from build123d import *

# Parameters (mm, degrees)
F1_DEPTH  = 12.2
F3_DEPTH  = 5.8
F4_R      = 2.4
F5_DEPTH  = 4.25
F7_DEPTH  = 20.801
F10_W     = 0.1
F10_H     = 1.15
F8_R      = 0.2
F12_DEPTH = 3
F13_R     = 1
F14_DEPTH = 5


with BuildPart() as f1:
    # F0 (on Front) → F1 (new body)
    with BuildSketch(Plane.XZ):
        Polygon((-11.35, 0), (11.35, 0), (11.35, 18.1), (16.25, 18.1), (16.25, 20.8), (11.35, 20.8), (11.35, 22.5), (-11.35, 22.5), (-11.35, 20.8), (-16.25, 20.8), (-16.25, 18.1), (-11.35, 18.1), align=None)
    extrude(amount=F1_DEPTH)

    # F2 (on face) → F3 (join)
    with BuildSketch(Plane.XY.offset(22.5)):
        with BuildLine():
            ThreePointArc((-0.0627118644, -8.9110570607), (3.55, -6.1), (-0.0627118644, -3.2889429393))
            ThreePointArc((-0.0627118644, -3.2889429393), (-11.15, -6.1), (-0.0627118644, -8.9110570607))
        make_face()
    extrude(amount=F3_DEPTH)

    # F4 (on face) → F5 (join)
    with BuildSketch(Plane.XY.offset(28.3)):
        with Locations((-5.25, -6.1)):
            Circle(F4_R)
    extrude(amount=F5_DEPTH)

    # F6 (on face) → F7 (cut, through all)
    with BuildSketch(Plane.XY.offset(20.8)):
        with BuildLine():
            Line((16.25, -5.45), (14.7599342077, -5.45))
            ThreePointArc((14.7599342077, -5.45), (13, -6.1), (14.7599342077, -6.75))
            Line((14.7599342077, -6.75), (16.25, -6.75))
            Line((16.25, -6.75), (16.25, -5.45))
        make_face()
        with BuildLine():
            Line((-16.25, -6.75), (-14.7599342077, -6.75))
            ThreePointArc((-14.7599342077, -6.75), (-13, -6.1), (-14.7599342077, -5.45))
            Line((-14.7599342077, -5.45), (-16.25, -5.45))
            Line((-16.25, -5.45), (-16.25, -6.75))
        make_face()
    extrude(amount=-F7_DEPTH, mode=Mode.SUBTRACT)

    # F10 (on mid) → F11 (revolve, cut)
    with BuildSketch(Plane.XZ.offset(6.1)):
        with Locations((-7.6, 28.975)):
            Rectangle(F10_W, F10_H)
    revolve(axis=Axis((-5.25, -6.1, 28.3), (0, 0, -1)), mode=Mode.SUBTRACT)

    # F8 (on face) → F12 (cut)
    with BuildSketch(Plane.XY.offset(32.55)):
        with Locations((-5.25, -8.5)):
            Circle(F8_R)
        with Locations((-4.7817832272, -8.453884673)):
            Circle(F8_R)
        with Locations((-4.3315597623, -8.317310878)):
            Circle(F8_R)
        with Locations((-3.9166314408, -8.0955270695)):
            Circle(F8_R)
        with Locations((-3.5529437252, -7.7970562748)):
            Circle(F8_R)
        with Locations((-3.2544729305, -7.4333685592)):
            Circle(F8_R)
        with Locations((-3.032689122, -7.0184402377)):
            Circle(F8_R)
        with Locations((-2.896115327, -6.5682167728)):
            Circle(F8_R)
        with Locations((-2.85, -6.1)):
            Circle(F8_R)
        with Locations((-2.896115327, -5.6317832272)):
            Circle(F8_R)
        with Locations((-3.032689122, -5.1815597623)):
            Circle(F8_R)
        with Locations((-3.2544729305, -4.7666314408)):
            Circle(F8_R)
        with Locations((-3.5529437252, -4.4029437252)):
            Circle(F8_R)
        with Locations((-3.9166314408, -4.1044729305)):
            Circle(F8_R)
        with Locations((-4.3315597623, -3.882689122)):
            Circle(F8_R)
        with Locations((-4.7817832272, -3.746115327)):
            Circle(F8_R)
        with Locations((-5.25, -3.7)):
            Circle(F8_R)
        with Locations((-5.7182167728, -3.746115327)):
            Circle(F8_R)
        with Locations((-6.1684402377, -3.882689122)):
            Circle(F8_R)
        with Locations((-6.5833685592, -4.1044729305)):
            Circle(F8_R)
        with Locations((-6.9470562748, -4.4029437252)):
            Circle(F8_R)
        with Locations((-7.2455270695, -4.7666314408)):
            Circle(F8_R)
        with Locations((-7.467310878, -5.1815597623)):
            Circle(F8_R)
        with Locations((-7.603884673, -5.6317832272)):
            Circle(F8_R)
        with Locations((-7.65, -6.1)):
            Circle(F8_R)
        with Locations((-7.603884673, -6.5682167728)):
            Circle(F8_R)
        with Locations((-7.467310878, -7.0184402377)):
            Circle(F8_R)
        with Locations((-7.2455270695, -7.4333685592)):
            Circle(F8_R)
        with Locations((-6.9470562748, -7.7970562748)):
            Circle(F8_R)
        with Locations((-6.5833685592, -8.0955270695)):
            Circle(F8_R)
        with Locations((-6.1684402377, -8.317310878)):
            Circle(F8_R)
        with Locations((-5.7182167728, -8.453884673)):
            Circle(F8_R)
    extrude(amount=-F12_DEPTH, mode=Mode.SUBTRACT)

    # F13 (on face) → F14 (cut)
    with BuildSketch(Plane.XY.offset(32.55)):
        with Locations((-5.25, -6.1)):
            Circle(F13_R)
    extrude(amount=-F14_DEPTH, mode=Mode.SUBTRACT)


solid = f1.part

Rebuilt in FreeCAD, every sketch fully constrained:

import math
import FreeCAD as App
import Part
import Sketcher

V = App.Vector

doc = App.newDocument("Part")
body = doc.addObject("PartDesign::Body", "Body")

# Sketch on XZ plane
sketch1 = body.newObject("Sketcher::SketchObject", "Sketch")
sketch1.AttachmentSupport = (doc.getObject("XZ_Plane"), [""])
sketch1.MapMode = "FlatFace"
sketch1.addGeometry(Part.LineSegment(V(-11.3, 0, 0), V(11.3, 0, 0)), False)
sketch1.addGeometry(Part.LineSegment(V(11.3, 0, 0), V(11.3, 18.1, 0)), False)
sketch1.addGeometry(Part.LineSegment(V(11.3, 18.1, 0), V(16.2, 18.1, 0)), False)
sketch1.addGeometry(Part.LineSegment(V(16.2, 18.1, 0), V(16.2, 20.8, 0)), False)
sketch1.addGeometry(Part.LineSegment(V(16.2, 20.8, 0), V(11.3, 20.8, 0)), False)
sketch1.addGeometry(Part.LineSegment(V(11.3, 20.8, 0), V(11.3, 22.5, 0)), False)
sketch1.addGeometry(Part.LineSegment(V(11.3, 22.5, 0), V(-11.3, 22.5, 0)), False)
sketch1.addGeometry(Part.LineSegment(V(-11.3, 22.5, 0), V(-11.3, 20.8, 0)), False)
sketch1.addGeometry(Part.LineSegment(V(-11.3, 20.8, 0), V(-16.2, 20.8, 0)), False)
sketch1.addGeometry(Part.LineSegment(V(-16.2, 20.8, 0), V(-16.2, 18.1, 0)), False)
sketch1.addGeometry(Part.LineSegment(V(-16.2, 18.1, 0), V(-11.3, 18.1, 0)), False)
sketch1.addGeometry(Part.LineSegment(V(-11.3, 18.1, 0), V(-11.3, 0, 0)), False)
sketch1.addConstraint(Sketcher.Constraint("Coincident", 0, 2, 1, 1))
sketch1.addConstraint(Sketcher.Constraint("Coincident", 1, 2, 2, 1))
sketch1.addConstraint(Sketcher.Constraint("Coincident", 2, 2, 3, 1))
sketch1.addConstraint(Sketcher.Constraint("Coincident", 3, 2, 4, 1))
sketch1.addConstraint(Sketcher.Constraint("Coincident", 4, 2, 5, 1))
sketch1.addConstraint(Sketcher.Constraint("Coincident", 5, 2, 6, 1))
sketch1.addConstraint(Sketcher.Constraint("Coincident", 6, 2, 7, 1))
sketch1.addConstraint(Sketcher.Constraint("Coincident", 7, 2, 8, 1))
sketch1.addConstraint(Sketcher.Constraint("Coincident", 8, 2, 9, 1))
sketch1.addConstraint(Sketcher.Constraint("Coincident", 9, 2, 10, 1))
sketch1.addConstraint(Sketcher.Constraint("Coincident", 10, 2, 11, 1))
sketch1.addConstraint(Sketcher.Constraint("Coincident", 11, 2, 0, 1))
sketch1.addConstraint(Sketcher.Constraint("Horizontal", 0))
sketch1.addConstraint(Sketcher.Constraint("Vertical", 1))
sketch1.addConstraint(Sketcher.Constraint("Horizontal", 2))
sketch1.addConstraint(Sketcher.Constraint("Vertical", 3))
sketch1.addConstraint(Sketcher.Constraint("Horizontal", 4))
sketch1.addConstraint(Sketcher.Constraint("Vertical", 5))
sketch1.addConstraint(Sketcher.Constraint("Horizontal", 6))
sketch1.addConstraint(Sketcher.Constraint("Vertical", 7))
sketch1.addConstraint(Sketcher.Constraint("Horizontal", 8))
sketch1.addConstraint(Sketcher.Constraint("Vertical", 9))
sketch1.addConstraint(Sketcher.Constraint("Horizontal", 10))
sketch1.addConstraint(Sketcher.Constraint("Vertical", 11))
sketch1.addConstraint(Sketcher.Constraint("Symmetric", 0, 2, 11, 2, -1, 1))
sketch1.addConstraint(Sketcher.Constraint("Symmetric", 4, 2, 7, 2, -2))
sketch1.addConstraint(Sketcher.Constraint("Symmetric", 2, 2, 9, 2, -2))
sketch1.addConstraint(Sketcher.Constraint("Vertical", 1, 2, 4, 2))
sketch1.addConstraint(Sketcher.Constraint("DistanceX", 0, 1, 0, 2, 22.7))
sketch1.addConstraint(Sketcher.Constraint("DistanceX", 2, 1, 2, 2, 4.9))
sketch1.addConstraint(Sketcher.Constraint("DistanceY", 1, 1, 1, 2, 18.1))
sketch1.addConstraint(Sketcher.Constraint("DistanceY", 3, 1, 3, 2, 2.7))
sketch1.addConstraint(Sketcher.Constraint("DistanceY", 5, 1, 5, 2, 1.7))
pad1 = body.newObject("PartDesign::Pad", "Pad")
pad1.Profile = sketch1
pad1.Length = 12.2

# Sketch on XY plane
sketch2 = body.newObject("Sketcher::SketchObject", "Sketch001")
sketch2.AttachmentSupport = (doc.getObject("XY_Plane"), [""])
sketch2.MapMode = "FlatFace"
sketch2.AttachmentOffset = App.Placement(V(0, 0, 22.5), App.Rotation())
sketch2.addGeometry(Part.ArcOfCircle(Part.Circle(V(0.7, -6.1, 0), V(0, 0, 1), 2.9), math.radians(-104), math.radians(104)), False)
sketch2.addGeometry(Part.ArcOfCircle(Part.Circle(V(-5.2, -6.1, 0), V(0, 0, 1), 5.9), math.radians(28), math.radians(332)), False)
sketch2.addConstraint(Sketcher.Constraint("Coincident", 0, 1, 1, 2))
sketch2.addConstraint(Sketcher.Constraint("Coincident", 1, 1, 0, 2))
sketch2.addConstraint(Sketcher.Constraint("Horizontal", 0, 3, 1, 3))
sketch2.addConstraint(Sketcher.Constraint("Radius", 0, 2.9))
sketch2.addConstraint(Sketcher.Constraint("Radius", 1, 5.9))
sketch2.addConstraint(Sketcher.Constraint("DistanceY", 0, 3, -1, 1, 6.1))
sketch2.addConstraint(Sketcher.Constraint("DistanceX", 1, 3, 0, 3, 5.9))
sketch2.addConstraint(Sketcher.Constraint("DistanceX", -1, 1, 0, 3, 0.65))
pad2 = body.newObject("PartDesign::Pad", "Pad001")
pad2.Profile = sketch2
pad2.Length = 5.8

# Sketch on XY plane
sketch3 = body.newObject("Sketcher::SketchObject", "Sketch002")
sketch3.AttachmentSupport = (doc.getObject("XY_Plane"), [""])
sketch3.MapMode = "FlatFace"
sketch3.AttachmentOffset = App.Placement(V(0, 0, 28.3), App.Rotation())
sketch3.addGeometry(Part.Circle(V(-5.2, -6.1, 0), V(0, 0, 1), 2.4), False)
sketch3.addConstraint(Sketcher.Constraint("Diameter", 0, 4.8))
sketch3.addConstraint(Sketcher.Constraint("DistanceY", 0, 3, -1, 1, 6.1))
sketch3.addConstraint(Sketcher.Constraint("DistanceX", 0, 3, -1, 1, 5.25))
pad3 = body.newObject("PartDesign::Pad", "Pad002")
pad3.Profile = sketch3
pad3.Length = 4.25

# Sketch on XY plane
sketch4 = body.newObject("Sketcher::SketchObject", "Sketch003")
sketch4.AttachmentSupport = (doc.getObject("XY_Plane"), [""])
sketch4.MapMode = "FlatFace"
sketch4.AttachmentOffset = App.Placement(V(0, 0, 20.8), App.Rotation())
sketch4.addGeometry(Part.LineSegment(V(16.2, -5.5, 0), V(14.8, -5.5, 0)), False)
sketch4.addGeometry(Part.ArcOfCircle(Part.Circle(V(14, -6.1, 0), V(0, 0, 1), 1), math.radians(41), math.radians(319)), False)
sketch4.addGeometry(Part.LineSegment(V(14.8, -6.8, 0), V(16.2, -6.8, 0)), False)
sketch4.addGeometry(Part.LineSegment(V(16.2, -6.8, 0), V(16.2, -5.5, 0)), False)
sketch4.addGeometry(Part.LineSegment(V(-16.2, -6.8, 0), V(-14.8, -6.8, 0)), False)
sketch4.addGeometry(Part.ArcOfCircle(Part.Circle(V(-14, -6.1, 0), V(0, 0, 1), 1), math.radians(-139), math.radians(139)), False)
sketch4.addGeometry(Part.LineSegment(V(-14.8, -5.5, 0), V(-16.2, -5.5, 0)), False)
sketch4.addGeometry(Part.LineSegment(V(-16.2, -5.5, 0), V(-16.2, -6.8, 0)), False)
sketch4.addConstraint(Sketcher.Constraint("Coincident", 0, 2, 1, 1))
sketch4.addConstraint(Sketcher.Constraint("Coincident", 1, 2, 2, 1))
sketch4.addConstraint(Sketcher.Constraint("Coincident", 2, 2, 3, 1))
sketch4.addConstraint(Sketcher.Constraint("Coincident", 3, 2, 0, 1))
sketch4.addConstraint(Sketcher.Constraint("Coincident", 4, 2, 5, 1))
sketch4.addConstraint(Sketcher.Constraint("Coincident", 5, 2, 6, 1))
sketch4.addConstraint(Sketcher.Constraint("Coincident", 6, 2, 7, 1))
sketch4.addConstraint(Sketcher.Constraint("Coincident", 7, 2, 4, 1))
sketch4.addConstraint(Sketcher.Constraint("Horizontal", 0))
sketch4.addConstraint(Sketcher.Constraint("Horizontal", 2))
sketch4.addConstraint(Sketcher.Constraint("Vertical", 3))
sketch4.addConstraint(Sketcher.Constraint("Horizontal", 4))
sketch4.addConstraint(Sketcher.Constraint("Horizontal", 6))
sketch4.addConstraint(Sketcher.Constraint("Vertical", 7))
sketch4.addConstraint(Sketcher.Constraint("Equal", 1, 5))
sketch4.addConstraint(Sketcher.Constraint("Symmetric", 1, 3, 5, 3, -2))
sketch4.addConstraint(Sketcher.Constraint("Symmetric", 3, 2, 6, 2, -2))
sketch4.addConstraint(Sketcher.Constraint("Horizontal", 2, 2, 4, 2))
sketch4.addConstraint(Sketcher.Constraint("Vertical", 0, 2, 1, 2))
sketch4.addConstraint(Sketcher.Constraint("Radius", 1, 1.0))
sketch4.addConstraint(Sketcher.Constraint("DistanceY", 3, 1, 3, 2, 1.3))
sketch4.addConstraint(Sketcher.Constraint("DistanceX", -1, 1, 1, 3, 14.0))
sketch4.addConstraint(Sketcher.Constraint("DistanceY", 1, 3, -1, 1, 6.1))
sketch4.addConstraint(Sketcher.Constraint("DistanceX", -1, 1, 2, 2, 16.25))
pocket1 = body.newObject("PartDesign::Pocket", "Pocket")
pocket1.Profile = sketch4
pocket1.Type = "ThroughAll"

# Sketch on XZ plane
sketch5 = body.newObject("Sketcher::SketchObject", "Sketch004")
sketch5.AttachmentSupport = (doc.getObject("XZ_Plane"), [""])
sketch5.MapMode = "FlatFace"
sketch5.AttachmentOffset = App.Placement(V(0, 0, 6.1), App.Rotation())
sketch5.addGeometry(Part.LineSegment(V(-7.65, 29.55, 0), V(-7.65, 28.4, 0)), False)
sketch5.addGeometry(Part.LineSegment(V(-7.65, 28.4, 0), V(-7.55, 28.4, 0)), False)
sketch5.addGeometry(Part.LineSegment(V(-7.55, 28.4, 0), V(-7.55, 29.55, 0)), False)
sketch5.addGeometry(Part.LineSegment(V(-7.55, 29.55, 0), V(-7.65, 29.55, 0)), False)
sketch5.addGeometry(Part.LineSegment(V(-5.25, 29.55, 0), V(-5.25, 28.4, 0)), True)  # axis
sketch5.addConstraint(Sketcher.Constraint("Coincident", 0, 2, 1, 1))
sketch5.addConstraint(Sketcher.Constraint("Coincident", 1, 2, 2, 1))
sketch5.addConstraint(Sketcher.Constraint("Coincident", 2, 2, 3, 1))
sketch5.addConstraint(Sketcher.Constraint("Coincident", 3, 2, 0, 1))
sketch5.addConstraint(Sketcher.Constraint("Vertical", 0))
sketch5.addConstraint(Sketcher.Constraint("Horizontal", 1))
sketch5.addConstraint(Sketcher.Constraint("Vertical", 2))
sketch5.addConstraint(Sketcher.Constraint("Horizontal", 3))
sketch5.addConstraint(Sketcher.Constraint("Vertical", 4))
sketch5.addConstraint(Sketcher.Constraint("Horizontal", 3, 2, 4, 1))
sketch5.addConstraint(Sketcher.Constraint("Horizontal", 1, 2, 4, 2))
sketch5.addConstraint(Sketcher.Constraint("DistanceX", 1, 1, 1, 2, 0.1))
sketch5.addConstraint(Sketcher.Constraint("DistanceY", 0, 2, 0, 1, 1.15))
sketch5.addConstraint(Sketcher.Constraint("DistanceY", -1, 1, 0, 2, 28.4))
sketch5.addConstraint(Sketcher.Constraint("DistanceX", 2, 2, 4, 1, 2.3))
sketch5.addConstraint(Sketcher.Constraint("DistanceX", 0, 2, -1, 1, 7.65))
groove = body.newObject("PartDesign::Groove", "Groove")
groove.Profile = sketch5
groove.ReferenceAxis = (sketch5, ["Axis0"])
groove.Angle = 360

# Sketch on XY plane
sketch6 = body.newObject("Sketcher::SketchObject", "Sketch005")
sketch6.AttachmentSupport = (doc.getObject("XY_Plane"), [""])
sketch6.MapMode = "FlatFace"
sketch6.AttachmentOffset = App.Placement(V(0, 0, 32.55), App.Rotation())
sketch6.addGeometry(Part.Circle(V(-5.25, -8.5, 0), V(0, 0, 1), 0.2), False)
sketch6.addGeometry(Part.Circle(V(-4.78, -8.45, 0), V(0, 0, 1), 0.2), False)
sketch6.addGeometry(Part.Circle(V(-4.33, -8.32, 0), V(0, 0, 1), 0.2), False)
sketch6.addGeometry(Part.Circle(V(-3.92, -8.1, 0), V(0, 0, 1), 0.2), False)
sketch6.addGeometry(Part.Circle(V(-3.55, -7.8, 0), V(0, 0, 1), 0.2), False)
sketch6.addGeometry(Part.Circle(V(-3.25, -7.43, 0), V(0, 0, 1), 0.2), False)
sketch6.addGeometry(Part.Circle(V(-3.03, -7.02, 0), V(0, 0, 1), 0.2), False)
sketch6.addGeometry(Part.Circle(V(-2.9, -6.57, 0), V(0, 0, 1), 0.2), False)
sketch6.addGeometry(Part.Circle(V(-2.85, -6.1, 0), V(0, 0, 1), 0.2), False)
sketch6.addGeometry(Part.Circle(V(-2.9, -5.63, 0), V(0, 0, 1), 0.2), False)
sketch6.addGeometry(Part.Circle(V(-3.03, -5.18, 0), V(0, 0, 1), 0.2), False)
sketch6.addGeometry(Part.Circle(V(-3.25, -4.77, 0), V(0, 0, 1), 0.2), False)
sketch6.addGeometry(Part.Circle(V(-3.55, -4.4, 0), V(0, 0, 1), 0.2), False)
sketch6.addGeometry(Part.Circle(V(-3.92, -4.1, 0), V(0, 0, 1), 0.2), False)
sketch6.addGeometry(Part.Circle(V(-4.33, -3.88, 0), V(0, 0, 1), 0.2), False)
sketch6.addGeometry(Part.Circle(V(-4.78, -3.75, 0), V(0, 0, 1), 0.2), False)
sketch6.addGeometry(Part.Circle(V(-5.25, -3.7, 0), V(0, 0, 1), 0.2), False)
sketch6.addGeometry(Part.Circle(V(-5.72, -3.75, 0), V(0, 0, 1), 0.2), False)
sketch6.addGeometry(Part.Circle(V(-6.17, -3.88, 0), V(0, 0, 1), 0.2), False)
sketch6.addGeometry(Part.Circle(V(-6.58, -4.1, 0), V(0, 0, 1), 0.2), False)
sketch6.addGeometry(Part.Circle(V(-6.95, -4.4, 0), V(0, 0, 1), 0.2), False)
sketch6.addGeometry(Part.Circle(V(-7.25, -4.77, 0), V(0, 0, 1), 0.2), False)
sketch6.addGeometry(Part.Circle(V(-7.47, -5.18, 0), V(0, 0, 1), 0.2), False)
sketch6.addGeometry(Part.Circle(V(-7.6, -5.63, 0), V(0, 0, 1), 0.2), False)
sketch6.addGeometry(Part.Circle(V(-7.65, -6.1, 0), V(0, 0, 1), 0.2), False)
sketch6.addGeometry(Part.Circle(V(-7.6, -6.57, 0), V(0, 0, 1), 0.2), False)
sketch6.addGeometry(Part.Circle(V(-7.47, -7.02, 0), V(0, 0, 1), 0.2), False)
sketch6.addGeometry(Part.Circle(V(-7.25, -7.43, 0), V(0, 0, 1), 0.2), False)
sketch6.addGeometry(Part.Circle(V(-6.95, -7.8, 0), V(0, 0, 1), 0.2), False)
sketch6.addGeometry(Part.Circle(V(-6.58, -8.1, 0), V(0, 0, 1), 0.2), False)
sketch6.addGeometry(Part.Circle(V(-6.17, -8.32, 0), V(0, 0, 1), 0.2), False)
sketch6.addGeometry(Part.Circle(V(-5.72, -8.45, 0), V(0, 0, 1), 0.2), False)
sketch6.addConstraint(Sketcher.Constraint("Equal", 0, 1))
sketch6.addConstraint(Sketcher.Constraint("Equal", 1, 2))
sketch6.addConstraint(Sketcher.Constraint("Equal", 2, 3))
sketch6.addConstraint(Sketcher.Constraint("Equal", 3, 4))
sketch6.addConstraint(Sketcher.Constraint("Equal", 4, 5))
sketch6.addConstraint(Sketcher.Constraint("Equal", 5, 6))
sketch6.addConstraint(Sketcher.Constraint("Equal", 6, 7))
sketch6.addConstraint(Sketcher.Constraint("Equal", 7, 8))
sketch6.addConstraint(Sketcher.Constraint("Equal", 8, 9))
sketch6.addConstraint(Sketcher.Constraint("Equal", 9, 10))
sketch6.addConstraint(Sketcher.Constraint("Equal", 10, 11))
sketch6.addConstraint(Sketcher.Constraint("Equal", 11, 12))
sketch6.addConstraint(Sketcher.Constraint("Equal", 12, 13))
sketch6.addConstraint(Sketcher.Constraint("Equal", 13, 14))
sketch6.addConstraint(Sketcher.Constraint("Equal", 14, 15))
sketch6.addConstraint(Sketcher.Constraint("Equal", 15, 16))
sketch6.addConstraint(Sketcher.Constraint("Equal", 16, 17))
sketch6.addConstraint(Sketcher.Constraint("Equal", 17, 18))
sketch6.addConstraint(Sketcher.Constraint("Equal", 18, 19))
sketch6.addConstraint(Sketcher.Constraint("Equal", 19, 20))
sketch6.addConstraint(Sketcher.Constraint("Equal", 20, 21))
sketch6.addConstraint(Sketcher.Constraint("Equal", 21, 22))
sketch6.addConstraint(Sketcher.Constraint("Equal", 22, 23))
sketch6.addConstraint(Sketcher.Constraint("Equal", 23, 24))
sketch6.addConstraint(Sketcher.Constraint("Equal", 24, 25))
sketch6.addConstraint(Sketcher.Constraint("Equal", 25, 26))
sketch6.addConstraint(Sketcher.Constraint("Equal", 26, 27))
sketch6.addConstraint(Sketcher.Constraint("Equal", 27, 28))
sketch6.addConstraint(Sketcher.Constraint("Equal", 28, 29))
sketch6.addConstraint(Sketcher.Constraint("Equal", 29, 30))
sketch6.addConstraint(Sketcher.Constraint("Equal", 30, 31))
sketch6.addConstraint(Sketcher.Constraint("Horizontal", 15, 3, 17, 3))
sketch6.addConstraint(Sketcher.Constraint("Horizontal", 14, 3, 18, 3))
sketch6.addConstraint(Sketcher.Constraint("Horizontal", 13, 3, 19, 3))
sketch6.addConstraint(Sketcher.Constraint("Horizontal", 12, 3, 20, 3))
sketch6.addConstraint(Sketcher.Constraint("Horizontal", 11, 3, 21, 3))
sketch6.addConstraint(Sketcher.Constraint("Horizontal", 10, 3, 22, 3))
sketch6.addConstraint(Sketcher.Constraint("Horizontal", 9, 3, 23, 3))
sketch6.addConstraint(Sketcher.Constraint("Horizontal", 8, 3, 24, 3))
sketch6.addConstraint(Sketcher.Constraint("Horizontal", 7, 3, 25, 3))
sketch6.addConstraint(Sketcher.Constraint("Horizontal", 6, 3, 26, 3))
sketch6.addConstraint(Sketcher.Constraint("Horizontal", 5, 3, 27, 3))
sketch6.addConstraint(Sketcher.Constraint("Horizontal", 4, 3, 28, 3))
sketch6.addConstraint(Sketcher.Constraint("Horizontal", 3, 3, 29, 3))
sketch6.addConstraint(Sketcher.Constraint("Horizontal", 2, 3, 30, 3))
sketch6.addConstraint(Sketcher.Constraint("Horizontal", 1, 3, 31, 3))
sketch6.addConstraint(Sketcher.Constraint("Vertical", 7, 3, 9, 3))
sketch6.addConstraint(Sketcher.Constraint("Vertical", 6, 3, 10, 3))
sketch6.addConstraint(Sketcher.Constraint("Vertical", 5, 3, 11, 3))
sketch6.addConstraint(Sketcher.Constraint("Vertical", 4, 3, 12, 3))
sketch6.addConstraint(Sketcher.Constraint("Vertical", 3, 3, 13, 3))
sketch6.addConstraint(Sketcher.Constraint("Vertical", 2, 3, 14, 3))
sketch6.addConstraint(Sketcher.Constraint("Vertical", 1, 3, 15, 3))
sketch6.addConstraint(Sketcher.Constraint("Vertical", 0, 3, 16, 3))
sketch6.addConstraint(Sketcher.Constraint("Vertical", 23, 3, 25, 3))
sketch6.addConstraint(Sketcher.Constraint("Vertical", 22, 3, 26, 3))
sketch6.addConstraint(Sketcher.Constraint("Vertical", 21, 3, 27, 3))
sketch6.addConstraint(Sketcher.Constraint("Vertical", 20, 3, 28, 3))
sketch6.addConstraint(Sketcher.Constraint("Vertical", 19, 3, 29, 3))
sketch6.addConstraint(Sketcher.Constraint("Vertical", 18, 3, 30, 3))
sketch6.addConstraint(Sketcher.Constraint("Vertical", 17, 3, 31, 3))
sketch6.addConstraint(Sketcher.Constraint("Diameter", 0, 0.4))
sketch6.addConstraint(Sketcher.Constraint("DistanceY", 0, 3, -1, 1, 8.5))
sketch6.addConstraint(Sketcher.Constraint("DistanceY", 8, 3, -1, 1, 6.1))
sketch6.addConstraint(Sketcher.Constraint("DistanceY", 16, 3, -1, 1, 3.7))
sketch6.addConstraint(Sketcher.Constraint("DistanceX", 0, 3, -1, 1, 5.25))
sketch6.addConstraint(Sketcher.Constraint("DistanceX", 8, 3, -1, 1, 2.85))
sketch6.addConstraint(Sketcher.Constraint("DistanceX", 24, 3, -1, 1, 7.65))
sketch6.addConstraint(Sketcher.Constraint("DistanceX", 2, 3, -1, 1, 4.33156))
sketch6.addConstraint(Sketcher.Constraint("DistanceY", 2, 3, -1, 1, 8.317311))
sketch6.addConstraint(Sketcher.Constraint("DistanceX", 3, 3, -1, 1, 3.916631))
sketch6.addConstraint(Sketcher.Constraint("DistanceY", 5, 3, -1, 1, 7.433369))
sketch6.addConstraint(Sketcher.Constraint("DistanceX", 6, 3, -1, 1, 3.032689))
sketch6.addConstraint(Sketcher.Constraint("DistanceY", 6, 3, -1, 1, 7.01844))
sketch6.addConstraint(Sketcher.Constraint("DistanceY", 10, 3, -1, 1, 5.18156))
sketch6.addConstraint(Sketcher.Constraint("DistanceY", 11, 3, -1, 1, 4.766631))
sketch6.addConstraint(Sketcher.Constraint("DistanceY", 14, 3, -1, 1, 3.882689))
sketch6.addConstraint(Sketcher.Constraint("DistanceX", 18, 3, -1, 1, 6.16844))
sketch6.addConstraint(Sketcher.Constraint("DistanceX", 19, 3, -1, 1, 6.583369))
sketch6.addConstraint(Sketcher.Constraint("DistanceX", 22, 3, -1, 1, 7.467311))
sketch6.addConstraint(Sketcher.Constraint("DistanceX", 1, 3, 3, 3, 0.865152))
sketch6.addConstraint(Sketcher.Constraint("DistanceY", 3, 3, 4, 3, 0.298471))
sketch6.addConstraint(Sketcher.Constraint("DistanceX", 1, 3, 4, 3, 1.22884))
sketch6.addConstraint(Sketcher.Constraint("DistanceY", 1, 3, 4, 3, 0.656828))
sketch6.addConstraint(Sketcher.Constraint("DistanceX", 4, 3, 5, 3, 0.298471))
sketch6.addConstraint(Sketcher.Constraint("DistanceY", 3, 3, 5, 3, 0.662159))
sketch6.addConstraint(Sketcher.Constraint("DistanceY", 5, 3, 7, 3, 0.865152))
sketch6.addConstraint(Sketcher.Constraint("DistanceX", 4, 3, 7, 3, 0.656828))
sketch6.addConstraint(Sketcher.Constraint("DistanceY", 9, 3, 11, 3, 0.865152))
sketch6.addConstraint(Sketcher.Constraint("DistanceY", 9, 3, 12, 3, 1.22884))
sketch6.addConstraint(Sketcher.Constraint("DistanceY", 12, 3, 13, 3, 0.298471))
sketch6.addConstraint(Sketcher.Constraint("DistanceY", 12, 3, 15, 3, 0.656828))
sketch6.addConstraint(Sketcher.Constraint("DistanceX", 19, 3, 17, 3, 0.865152))
sketch6.addConstraint(Sketcher.Constraint("DistanceX", 20, 3, 17, 3, 1.22884))
sketch6.addConstraint(Sketcher.Constraint("DistanceX", 21, 3, 20, 3, 0.298471))
sketch6.addConstraint(Sketcher.Constraint("DistanceX", 23, 3, 20, 3, 0.656828))
pocket2 = body.newObject("PartDesign::Pocket", "Pocket001")
pocket2.Profile = sketch6
pocket2.Length = 3

# Sketch on XY plane
sketch7 = body.newObject("Sketcher::SketchObject", "Sketch006")
sketch7.AttachmentSupport = (doc.getObject("XY_Plane"), [""])
sketch7.MapMode = "FlatFace"
sketch7.AttachmentOffset = App.Placement(V(0, 0, 32.55), App.Rotation())
sketch7.addGeometry(Part.Circle(V(-5.2, -6.1, 0), V(0, 0, 1), 1), False)
sketch7.addConstraint(Sketcher.Constraint("Diameter", 0, 2.0))
sketch7.addConstraint(Sketcher.Constraint("DistanceY", 0, 3, -1, 1, 6.1))
sketch7.addConstraint(Sketcher.Constraint("DistanceX", 0, 3, -1, 1, 5.25))
pocket3 = body.newObject("PartDesign::Pocket", "Pocket002")
pocket3.Profile = sketch7
pocket3.Length = 5

doc.recompute()
